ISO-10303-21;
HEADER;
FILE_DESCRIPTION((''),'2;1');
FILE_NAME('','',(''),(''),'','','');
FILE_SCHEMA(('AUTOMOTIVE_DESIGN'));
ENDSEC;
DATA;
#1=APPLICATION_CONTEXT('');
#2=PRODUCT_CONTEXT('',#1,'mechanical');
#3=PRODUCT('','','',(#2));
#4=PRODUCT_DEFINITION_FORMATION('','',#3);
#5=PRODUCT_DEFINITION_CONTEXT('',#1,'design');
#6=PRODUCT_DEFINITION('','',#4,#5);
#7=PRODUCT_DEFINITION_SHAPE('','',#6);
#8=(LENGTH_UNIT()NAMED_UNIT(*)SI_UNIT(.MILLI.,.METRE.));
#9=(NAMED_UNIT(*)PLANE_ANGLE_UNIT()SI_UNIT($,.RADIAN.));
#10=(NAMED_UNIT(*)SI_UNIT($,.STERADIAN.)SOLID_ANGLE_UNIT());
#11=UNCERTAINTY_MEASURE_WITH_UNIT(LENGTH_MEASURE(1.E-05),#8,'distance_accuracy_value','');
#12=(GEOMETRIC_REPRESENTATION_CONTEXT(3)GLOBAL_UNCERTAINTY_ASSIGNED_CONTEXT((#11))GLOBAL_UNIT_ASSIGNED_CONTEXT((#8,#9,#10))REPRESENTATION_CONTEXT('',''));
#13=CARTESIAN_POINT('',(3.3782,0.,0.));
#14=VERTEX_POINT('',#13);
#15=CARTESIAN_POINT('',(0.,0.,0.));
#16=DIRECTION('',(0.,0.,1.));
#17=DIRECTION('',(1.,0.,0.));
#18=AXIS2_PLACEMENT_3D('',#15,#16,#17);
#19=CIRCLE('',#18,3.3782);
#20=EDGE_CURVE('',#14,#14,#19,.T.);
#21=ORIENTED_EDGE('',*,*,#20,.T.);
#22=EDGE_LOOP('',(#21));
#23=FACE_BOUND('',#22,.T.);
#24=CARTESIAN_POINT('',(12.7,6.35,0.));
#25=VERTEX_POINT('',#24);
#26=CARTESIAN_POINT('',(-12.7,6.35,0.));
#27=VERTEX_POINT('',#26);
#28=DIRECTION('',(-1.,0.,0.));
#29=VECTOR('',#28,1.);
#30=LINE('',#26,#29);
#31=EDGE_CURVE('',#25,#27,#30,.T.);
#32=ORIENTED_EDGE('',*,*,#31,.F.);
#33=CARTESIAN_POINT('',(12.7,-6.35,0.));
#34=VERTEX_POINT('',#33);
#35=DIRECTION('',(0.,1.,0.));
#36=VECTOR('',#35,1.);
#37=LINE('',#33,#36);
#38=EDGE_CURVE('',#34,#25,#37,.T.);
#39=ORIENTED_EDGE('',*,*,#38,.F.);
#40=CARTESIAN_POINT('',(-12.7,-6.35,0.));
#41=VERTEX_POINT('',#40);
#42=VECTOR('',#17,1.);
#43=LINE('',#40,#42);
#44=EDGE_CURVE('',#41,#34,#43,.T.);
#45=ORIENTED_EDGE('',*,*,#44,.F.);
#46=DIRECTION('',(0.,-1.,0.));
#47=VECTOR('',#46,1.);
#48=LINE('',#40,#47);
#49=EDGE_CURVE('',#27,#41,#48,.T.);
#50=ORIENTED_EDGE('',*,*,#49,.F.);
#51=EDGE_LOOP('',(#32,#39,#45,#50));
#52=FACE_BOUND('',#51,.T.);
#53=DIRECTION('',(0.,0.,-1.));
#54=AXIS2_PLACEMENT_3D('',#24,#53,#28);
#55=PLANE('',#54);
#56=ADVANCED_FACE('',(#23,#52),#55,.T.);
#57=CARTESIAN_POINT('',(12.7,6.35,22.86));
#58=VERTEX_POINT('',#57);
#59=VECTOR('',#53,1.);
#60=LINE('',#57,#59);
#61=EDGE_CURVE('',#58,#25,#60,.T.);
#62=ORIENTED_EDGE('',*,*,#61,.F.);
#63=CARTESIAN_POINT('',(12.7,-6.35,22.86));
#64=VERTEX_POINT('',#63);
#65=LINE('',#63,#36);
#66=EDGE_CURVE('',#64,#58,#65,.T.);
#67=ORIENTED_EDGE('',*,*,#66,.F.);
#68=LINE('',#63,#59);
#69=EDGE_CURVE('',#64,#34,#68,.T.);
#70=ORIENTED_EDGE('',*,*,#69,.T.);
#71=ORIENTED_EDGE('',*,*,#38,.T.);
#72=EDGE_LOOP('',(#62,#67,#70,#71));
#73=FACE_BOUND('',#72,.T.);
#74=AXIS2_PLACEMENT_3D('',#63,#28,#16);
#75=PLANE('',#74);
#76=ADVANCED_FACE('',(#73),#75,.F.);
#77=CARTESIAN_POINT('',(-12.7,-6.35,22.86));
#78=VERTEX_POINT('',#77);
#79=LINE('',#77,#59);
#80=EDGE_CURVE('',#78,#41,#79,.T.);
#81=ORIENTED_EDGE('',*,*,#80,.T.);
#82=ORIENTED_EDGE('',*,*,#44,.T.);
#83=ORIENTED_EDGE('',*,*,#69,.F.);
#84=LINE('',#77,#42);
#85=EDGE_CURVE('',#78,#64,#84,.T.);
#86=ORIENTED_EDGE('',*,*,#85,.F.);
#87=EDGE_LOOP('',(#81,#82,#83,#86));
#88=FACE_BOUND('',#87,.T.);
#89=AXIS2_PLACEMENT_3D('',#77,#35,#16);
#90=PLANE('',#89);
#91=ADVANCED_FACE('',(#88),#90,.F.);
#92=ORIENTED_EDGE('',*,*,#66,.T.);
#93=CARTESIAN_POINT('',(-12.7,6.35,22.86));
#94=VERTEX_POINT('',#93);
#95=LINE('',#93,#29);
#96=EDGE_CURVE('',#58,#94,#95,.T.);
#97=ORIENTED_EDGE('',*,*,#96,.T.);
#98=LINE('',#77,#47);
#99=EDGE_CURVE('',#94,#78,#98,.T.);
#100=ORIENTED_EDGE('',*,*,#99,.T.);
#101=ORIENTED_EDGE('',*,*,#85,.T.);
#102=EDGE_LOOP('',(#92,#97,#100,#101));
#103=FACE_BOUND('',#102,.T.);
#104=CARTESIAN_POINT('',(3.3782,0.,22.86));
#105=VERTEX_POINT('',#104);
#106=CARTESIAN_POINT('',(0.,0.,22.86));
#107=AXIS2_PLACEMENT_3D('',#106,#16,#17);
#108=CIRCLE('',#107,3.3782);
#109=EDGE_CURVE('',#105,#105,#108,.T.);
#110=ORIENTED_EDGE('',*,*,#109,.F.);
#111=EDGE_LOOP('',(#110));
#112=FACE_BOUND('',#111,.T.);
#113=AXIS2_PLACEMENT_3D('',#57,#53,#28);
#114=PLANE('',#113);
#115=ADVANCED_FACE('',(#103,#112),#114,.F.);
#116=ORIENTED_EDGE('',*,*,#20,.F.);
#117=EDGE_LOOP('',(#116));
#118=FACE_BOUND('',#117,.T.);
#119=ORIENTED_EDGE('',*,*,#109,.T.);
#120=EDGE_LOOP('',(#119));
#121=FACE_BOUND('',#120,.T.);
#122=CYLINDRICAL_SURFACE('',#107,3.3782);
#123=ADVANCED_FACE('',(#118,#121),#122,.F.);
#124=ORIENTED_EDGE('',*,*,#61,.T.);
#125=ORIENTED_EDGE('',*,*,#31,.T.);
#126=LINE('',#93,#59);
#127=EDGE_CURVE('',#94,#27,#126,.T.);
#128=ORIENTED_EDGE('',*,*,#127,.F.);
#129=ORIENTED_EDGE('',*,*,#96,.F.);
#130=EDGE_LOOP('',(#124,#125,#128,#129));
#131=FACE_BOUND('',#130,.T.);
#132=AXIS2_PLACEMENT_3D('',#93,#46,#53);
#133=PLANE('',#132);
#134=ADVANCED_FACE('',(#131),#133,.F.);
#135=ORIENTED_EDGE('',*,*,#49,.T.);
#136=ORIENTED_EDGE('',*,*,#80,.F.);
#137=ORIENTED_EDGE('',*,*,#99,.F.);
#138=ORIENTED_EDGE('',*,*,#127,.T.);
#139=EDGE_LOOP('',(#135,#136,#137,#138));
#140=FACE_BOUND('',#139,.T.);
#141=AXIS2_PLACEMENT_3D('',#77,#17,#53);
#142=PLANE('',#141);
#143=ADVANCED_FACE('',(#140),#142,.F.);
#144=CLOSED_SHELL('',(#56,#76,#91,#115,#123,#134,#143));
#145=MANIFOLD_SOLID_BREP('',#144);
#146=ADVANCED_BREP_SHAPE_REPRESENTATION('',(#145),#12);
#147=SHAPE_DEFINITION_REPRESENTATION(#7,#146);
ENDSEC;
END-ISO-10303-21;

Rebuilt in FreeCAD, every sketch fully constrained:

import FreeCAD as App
import Part
import Sketcher
from FreeCAD import Vector
Q = App.Units.Quantity

doc = App.newDocument("Part")
params = doc.addObject("Spreadsheet::Sheet", "Params")
for row, (alias, value) in enumerate([
    ("sketch1_width", "1 in"),
    ("sketch1_height", "0.5 in"),
    ("pad1_length", "0.9 in"),
    ("sketch2_diameter", "0.266 in"),
    ("hole_diameter", "0.266 in"),
    ("sketch3_diameter", "0.266 in"),
    ("hole2_diameter", "0.266 in"),
], start=1):
    params.set(f"A{row}", alias)
    params.set(f"B{row}", "=" + value)
    params.setAlias(f"B{row}", alias)

body = doc.addObject("PartDesign::Body", "Body")

sketch1 = body.newObject("Sketcher::SketchObject", "Sketch")
sketch1.AttachmentSupport = (doc.getObject("XY_Plane"), [""])
sketch1.MapMode = "FlatFace"
sketch1.addGeometry([
    Part.LineSegment(Vector(-13, 6, 0), Vector(-13, -6, 0)),
    Part.LineSegment(Vector(-13, -6, 0), Vector(13, -6, 0)),
    Part.LineSegment(Vector(13, -6, 0), Vector(13, 6, 0)),
    Part.LineSegment(Vector(13, 6, 0), Vector(-13, 6, 0)),
], False)
sketch1.addConstraint([
    Sketcher.Constraint("Coincident", 0, 2, 1, 1),
    Sketcher.Constraint("Coincident", 1, 2, 2, 1),
    Sketcher.Constraint("Coincident", 2, 2, 3, 1),
    Sketcher.Constraint("Coincident", 3, 2, 0, 1),
    Sketcher.Constraint("Vertical", 0),
    Sketcher.Constraint("Horizontal", 1),
    Sketcher.Constraint("Vertical", 2),
    Sketcher.Constraint("Horizontal", 3),
    Sketcher.Constraint("Symmetric", 0, 2, 2, 2, -1, 1),
    Sketcher.Constraint("DistanceX", 1, 1, 1, 2, Q("1 in")),
    Sketcher.Constraint("DistanceY", 0, 2, 0, 1, Q("0.5 in")),
])
sketch1.setExpression("Constraints[9]", "Params.sketch1_width")
sketch1.setExpression("Constraints[10]", "Params.sketch1_height")
pad1 = body.newObject("PartDesign::Pad", "Pad")
pad1.Profile = sketch1
pad1.setExpression("Length", "Params.pad1_length")

sketch2 = body.newObject("Sketcher::SketchObject", "Sketch001")
sketch2.AttachmentSupport = (doc.getObject("XY_Plane"), [""])
sketch2.MapMode = "FlatFace"
sketch2.addGeometry(Part.Circle(Vector(0, 0, 0), Vector(0, 0, 1), 3.4), False)
sketch2.addConstraint([
    Sketcher.Constraint("Coincident", 0, 3, -1, 1),
    Sketcher.Constraint("Diameter", 0, Q("0.266 in")),
])
sketch2.setExpression("Constraints[1]", "Params.sketch2_diameter")
doc.recompute()
hole = body.newObject("PartDesign::Hole", "Hole")
hole.Profile = sketch2
hole.ThreadType = "None"
hole.setExpression("Diameter", "Params.hole_diameter")
hole.DepthType = "ThroughAll"
hole.Reversed = True

sketch3 = body.newObject("Sketcher::SketchObject", "Sketch002")
sketch3.AttachmentSupport = (doc.getObject("XY_Plane"), [""])
sketch3.MapMode = "FlatFace"
sketch3.AttachmentOffset = App.Placement(Vector(0, 0, 0.9 * 25.4), App.Rotation())
sketch3.addGeometry(Part.Circle(Vector(0, 0, 0), Vector(0, 0, 1), 3.4), False)
sketch3.addConstraint([
    Sketcher.Constraint("Coincident", 0, 3, -1, 1),
    Sketcher.Constraint("Diameter", 0, Q("0.266 in")),
])
sketch3.setExpression("Constraints[1]", "Params.sketch3_diameter")
doc.recompute()
hole2 = body.newObject("PartDesign::Hole", "Hole001")
hole2.Profile = sketch3
hole2.ThreadType = "None"
hole2.setExpression("Diameter", "Params.hole2_diameter")
hole2.DepthType = "ThroughAll"

doc.recompute()
